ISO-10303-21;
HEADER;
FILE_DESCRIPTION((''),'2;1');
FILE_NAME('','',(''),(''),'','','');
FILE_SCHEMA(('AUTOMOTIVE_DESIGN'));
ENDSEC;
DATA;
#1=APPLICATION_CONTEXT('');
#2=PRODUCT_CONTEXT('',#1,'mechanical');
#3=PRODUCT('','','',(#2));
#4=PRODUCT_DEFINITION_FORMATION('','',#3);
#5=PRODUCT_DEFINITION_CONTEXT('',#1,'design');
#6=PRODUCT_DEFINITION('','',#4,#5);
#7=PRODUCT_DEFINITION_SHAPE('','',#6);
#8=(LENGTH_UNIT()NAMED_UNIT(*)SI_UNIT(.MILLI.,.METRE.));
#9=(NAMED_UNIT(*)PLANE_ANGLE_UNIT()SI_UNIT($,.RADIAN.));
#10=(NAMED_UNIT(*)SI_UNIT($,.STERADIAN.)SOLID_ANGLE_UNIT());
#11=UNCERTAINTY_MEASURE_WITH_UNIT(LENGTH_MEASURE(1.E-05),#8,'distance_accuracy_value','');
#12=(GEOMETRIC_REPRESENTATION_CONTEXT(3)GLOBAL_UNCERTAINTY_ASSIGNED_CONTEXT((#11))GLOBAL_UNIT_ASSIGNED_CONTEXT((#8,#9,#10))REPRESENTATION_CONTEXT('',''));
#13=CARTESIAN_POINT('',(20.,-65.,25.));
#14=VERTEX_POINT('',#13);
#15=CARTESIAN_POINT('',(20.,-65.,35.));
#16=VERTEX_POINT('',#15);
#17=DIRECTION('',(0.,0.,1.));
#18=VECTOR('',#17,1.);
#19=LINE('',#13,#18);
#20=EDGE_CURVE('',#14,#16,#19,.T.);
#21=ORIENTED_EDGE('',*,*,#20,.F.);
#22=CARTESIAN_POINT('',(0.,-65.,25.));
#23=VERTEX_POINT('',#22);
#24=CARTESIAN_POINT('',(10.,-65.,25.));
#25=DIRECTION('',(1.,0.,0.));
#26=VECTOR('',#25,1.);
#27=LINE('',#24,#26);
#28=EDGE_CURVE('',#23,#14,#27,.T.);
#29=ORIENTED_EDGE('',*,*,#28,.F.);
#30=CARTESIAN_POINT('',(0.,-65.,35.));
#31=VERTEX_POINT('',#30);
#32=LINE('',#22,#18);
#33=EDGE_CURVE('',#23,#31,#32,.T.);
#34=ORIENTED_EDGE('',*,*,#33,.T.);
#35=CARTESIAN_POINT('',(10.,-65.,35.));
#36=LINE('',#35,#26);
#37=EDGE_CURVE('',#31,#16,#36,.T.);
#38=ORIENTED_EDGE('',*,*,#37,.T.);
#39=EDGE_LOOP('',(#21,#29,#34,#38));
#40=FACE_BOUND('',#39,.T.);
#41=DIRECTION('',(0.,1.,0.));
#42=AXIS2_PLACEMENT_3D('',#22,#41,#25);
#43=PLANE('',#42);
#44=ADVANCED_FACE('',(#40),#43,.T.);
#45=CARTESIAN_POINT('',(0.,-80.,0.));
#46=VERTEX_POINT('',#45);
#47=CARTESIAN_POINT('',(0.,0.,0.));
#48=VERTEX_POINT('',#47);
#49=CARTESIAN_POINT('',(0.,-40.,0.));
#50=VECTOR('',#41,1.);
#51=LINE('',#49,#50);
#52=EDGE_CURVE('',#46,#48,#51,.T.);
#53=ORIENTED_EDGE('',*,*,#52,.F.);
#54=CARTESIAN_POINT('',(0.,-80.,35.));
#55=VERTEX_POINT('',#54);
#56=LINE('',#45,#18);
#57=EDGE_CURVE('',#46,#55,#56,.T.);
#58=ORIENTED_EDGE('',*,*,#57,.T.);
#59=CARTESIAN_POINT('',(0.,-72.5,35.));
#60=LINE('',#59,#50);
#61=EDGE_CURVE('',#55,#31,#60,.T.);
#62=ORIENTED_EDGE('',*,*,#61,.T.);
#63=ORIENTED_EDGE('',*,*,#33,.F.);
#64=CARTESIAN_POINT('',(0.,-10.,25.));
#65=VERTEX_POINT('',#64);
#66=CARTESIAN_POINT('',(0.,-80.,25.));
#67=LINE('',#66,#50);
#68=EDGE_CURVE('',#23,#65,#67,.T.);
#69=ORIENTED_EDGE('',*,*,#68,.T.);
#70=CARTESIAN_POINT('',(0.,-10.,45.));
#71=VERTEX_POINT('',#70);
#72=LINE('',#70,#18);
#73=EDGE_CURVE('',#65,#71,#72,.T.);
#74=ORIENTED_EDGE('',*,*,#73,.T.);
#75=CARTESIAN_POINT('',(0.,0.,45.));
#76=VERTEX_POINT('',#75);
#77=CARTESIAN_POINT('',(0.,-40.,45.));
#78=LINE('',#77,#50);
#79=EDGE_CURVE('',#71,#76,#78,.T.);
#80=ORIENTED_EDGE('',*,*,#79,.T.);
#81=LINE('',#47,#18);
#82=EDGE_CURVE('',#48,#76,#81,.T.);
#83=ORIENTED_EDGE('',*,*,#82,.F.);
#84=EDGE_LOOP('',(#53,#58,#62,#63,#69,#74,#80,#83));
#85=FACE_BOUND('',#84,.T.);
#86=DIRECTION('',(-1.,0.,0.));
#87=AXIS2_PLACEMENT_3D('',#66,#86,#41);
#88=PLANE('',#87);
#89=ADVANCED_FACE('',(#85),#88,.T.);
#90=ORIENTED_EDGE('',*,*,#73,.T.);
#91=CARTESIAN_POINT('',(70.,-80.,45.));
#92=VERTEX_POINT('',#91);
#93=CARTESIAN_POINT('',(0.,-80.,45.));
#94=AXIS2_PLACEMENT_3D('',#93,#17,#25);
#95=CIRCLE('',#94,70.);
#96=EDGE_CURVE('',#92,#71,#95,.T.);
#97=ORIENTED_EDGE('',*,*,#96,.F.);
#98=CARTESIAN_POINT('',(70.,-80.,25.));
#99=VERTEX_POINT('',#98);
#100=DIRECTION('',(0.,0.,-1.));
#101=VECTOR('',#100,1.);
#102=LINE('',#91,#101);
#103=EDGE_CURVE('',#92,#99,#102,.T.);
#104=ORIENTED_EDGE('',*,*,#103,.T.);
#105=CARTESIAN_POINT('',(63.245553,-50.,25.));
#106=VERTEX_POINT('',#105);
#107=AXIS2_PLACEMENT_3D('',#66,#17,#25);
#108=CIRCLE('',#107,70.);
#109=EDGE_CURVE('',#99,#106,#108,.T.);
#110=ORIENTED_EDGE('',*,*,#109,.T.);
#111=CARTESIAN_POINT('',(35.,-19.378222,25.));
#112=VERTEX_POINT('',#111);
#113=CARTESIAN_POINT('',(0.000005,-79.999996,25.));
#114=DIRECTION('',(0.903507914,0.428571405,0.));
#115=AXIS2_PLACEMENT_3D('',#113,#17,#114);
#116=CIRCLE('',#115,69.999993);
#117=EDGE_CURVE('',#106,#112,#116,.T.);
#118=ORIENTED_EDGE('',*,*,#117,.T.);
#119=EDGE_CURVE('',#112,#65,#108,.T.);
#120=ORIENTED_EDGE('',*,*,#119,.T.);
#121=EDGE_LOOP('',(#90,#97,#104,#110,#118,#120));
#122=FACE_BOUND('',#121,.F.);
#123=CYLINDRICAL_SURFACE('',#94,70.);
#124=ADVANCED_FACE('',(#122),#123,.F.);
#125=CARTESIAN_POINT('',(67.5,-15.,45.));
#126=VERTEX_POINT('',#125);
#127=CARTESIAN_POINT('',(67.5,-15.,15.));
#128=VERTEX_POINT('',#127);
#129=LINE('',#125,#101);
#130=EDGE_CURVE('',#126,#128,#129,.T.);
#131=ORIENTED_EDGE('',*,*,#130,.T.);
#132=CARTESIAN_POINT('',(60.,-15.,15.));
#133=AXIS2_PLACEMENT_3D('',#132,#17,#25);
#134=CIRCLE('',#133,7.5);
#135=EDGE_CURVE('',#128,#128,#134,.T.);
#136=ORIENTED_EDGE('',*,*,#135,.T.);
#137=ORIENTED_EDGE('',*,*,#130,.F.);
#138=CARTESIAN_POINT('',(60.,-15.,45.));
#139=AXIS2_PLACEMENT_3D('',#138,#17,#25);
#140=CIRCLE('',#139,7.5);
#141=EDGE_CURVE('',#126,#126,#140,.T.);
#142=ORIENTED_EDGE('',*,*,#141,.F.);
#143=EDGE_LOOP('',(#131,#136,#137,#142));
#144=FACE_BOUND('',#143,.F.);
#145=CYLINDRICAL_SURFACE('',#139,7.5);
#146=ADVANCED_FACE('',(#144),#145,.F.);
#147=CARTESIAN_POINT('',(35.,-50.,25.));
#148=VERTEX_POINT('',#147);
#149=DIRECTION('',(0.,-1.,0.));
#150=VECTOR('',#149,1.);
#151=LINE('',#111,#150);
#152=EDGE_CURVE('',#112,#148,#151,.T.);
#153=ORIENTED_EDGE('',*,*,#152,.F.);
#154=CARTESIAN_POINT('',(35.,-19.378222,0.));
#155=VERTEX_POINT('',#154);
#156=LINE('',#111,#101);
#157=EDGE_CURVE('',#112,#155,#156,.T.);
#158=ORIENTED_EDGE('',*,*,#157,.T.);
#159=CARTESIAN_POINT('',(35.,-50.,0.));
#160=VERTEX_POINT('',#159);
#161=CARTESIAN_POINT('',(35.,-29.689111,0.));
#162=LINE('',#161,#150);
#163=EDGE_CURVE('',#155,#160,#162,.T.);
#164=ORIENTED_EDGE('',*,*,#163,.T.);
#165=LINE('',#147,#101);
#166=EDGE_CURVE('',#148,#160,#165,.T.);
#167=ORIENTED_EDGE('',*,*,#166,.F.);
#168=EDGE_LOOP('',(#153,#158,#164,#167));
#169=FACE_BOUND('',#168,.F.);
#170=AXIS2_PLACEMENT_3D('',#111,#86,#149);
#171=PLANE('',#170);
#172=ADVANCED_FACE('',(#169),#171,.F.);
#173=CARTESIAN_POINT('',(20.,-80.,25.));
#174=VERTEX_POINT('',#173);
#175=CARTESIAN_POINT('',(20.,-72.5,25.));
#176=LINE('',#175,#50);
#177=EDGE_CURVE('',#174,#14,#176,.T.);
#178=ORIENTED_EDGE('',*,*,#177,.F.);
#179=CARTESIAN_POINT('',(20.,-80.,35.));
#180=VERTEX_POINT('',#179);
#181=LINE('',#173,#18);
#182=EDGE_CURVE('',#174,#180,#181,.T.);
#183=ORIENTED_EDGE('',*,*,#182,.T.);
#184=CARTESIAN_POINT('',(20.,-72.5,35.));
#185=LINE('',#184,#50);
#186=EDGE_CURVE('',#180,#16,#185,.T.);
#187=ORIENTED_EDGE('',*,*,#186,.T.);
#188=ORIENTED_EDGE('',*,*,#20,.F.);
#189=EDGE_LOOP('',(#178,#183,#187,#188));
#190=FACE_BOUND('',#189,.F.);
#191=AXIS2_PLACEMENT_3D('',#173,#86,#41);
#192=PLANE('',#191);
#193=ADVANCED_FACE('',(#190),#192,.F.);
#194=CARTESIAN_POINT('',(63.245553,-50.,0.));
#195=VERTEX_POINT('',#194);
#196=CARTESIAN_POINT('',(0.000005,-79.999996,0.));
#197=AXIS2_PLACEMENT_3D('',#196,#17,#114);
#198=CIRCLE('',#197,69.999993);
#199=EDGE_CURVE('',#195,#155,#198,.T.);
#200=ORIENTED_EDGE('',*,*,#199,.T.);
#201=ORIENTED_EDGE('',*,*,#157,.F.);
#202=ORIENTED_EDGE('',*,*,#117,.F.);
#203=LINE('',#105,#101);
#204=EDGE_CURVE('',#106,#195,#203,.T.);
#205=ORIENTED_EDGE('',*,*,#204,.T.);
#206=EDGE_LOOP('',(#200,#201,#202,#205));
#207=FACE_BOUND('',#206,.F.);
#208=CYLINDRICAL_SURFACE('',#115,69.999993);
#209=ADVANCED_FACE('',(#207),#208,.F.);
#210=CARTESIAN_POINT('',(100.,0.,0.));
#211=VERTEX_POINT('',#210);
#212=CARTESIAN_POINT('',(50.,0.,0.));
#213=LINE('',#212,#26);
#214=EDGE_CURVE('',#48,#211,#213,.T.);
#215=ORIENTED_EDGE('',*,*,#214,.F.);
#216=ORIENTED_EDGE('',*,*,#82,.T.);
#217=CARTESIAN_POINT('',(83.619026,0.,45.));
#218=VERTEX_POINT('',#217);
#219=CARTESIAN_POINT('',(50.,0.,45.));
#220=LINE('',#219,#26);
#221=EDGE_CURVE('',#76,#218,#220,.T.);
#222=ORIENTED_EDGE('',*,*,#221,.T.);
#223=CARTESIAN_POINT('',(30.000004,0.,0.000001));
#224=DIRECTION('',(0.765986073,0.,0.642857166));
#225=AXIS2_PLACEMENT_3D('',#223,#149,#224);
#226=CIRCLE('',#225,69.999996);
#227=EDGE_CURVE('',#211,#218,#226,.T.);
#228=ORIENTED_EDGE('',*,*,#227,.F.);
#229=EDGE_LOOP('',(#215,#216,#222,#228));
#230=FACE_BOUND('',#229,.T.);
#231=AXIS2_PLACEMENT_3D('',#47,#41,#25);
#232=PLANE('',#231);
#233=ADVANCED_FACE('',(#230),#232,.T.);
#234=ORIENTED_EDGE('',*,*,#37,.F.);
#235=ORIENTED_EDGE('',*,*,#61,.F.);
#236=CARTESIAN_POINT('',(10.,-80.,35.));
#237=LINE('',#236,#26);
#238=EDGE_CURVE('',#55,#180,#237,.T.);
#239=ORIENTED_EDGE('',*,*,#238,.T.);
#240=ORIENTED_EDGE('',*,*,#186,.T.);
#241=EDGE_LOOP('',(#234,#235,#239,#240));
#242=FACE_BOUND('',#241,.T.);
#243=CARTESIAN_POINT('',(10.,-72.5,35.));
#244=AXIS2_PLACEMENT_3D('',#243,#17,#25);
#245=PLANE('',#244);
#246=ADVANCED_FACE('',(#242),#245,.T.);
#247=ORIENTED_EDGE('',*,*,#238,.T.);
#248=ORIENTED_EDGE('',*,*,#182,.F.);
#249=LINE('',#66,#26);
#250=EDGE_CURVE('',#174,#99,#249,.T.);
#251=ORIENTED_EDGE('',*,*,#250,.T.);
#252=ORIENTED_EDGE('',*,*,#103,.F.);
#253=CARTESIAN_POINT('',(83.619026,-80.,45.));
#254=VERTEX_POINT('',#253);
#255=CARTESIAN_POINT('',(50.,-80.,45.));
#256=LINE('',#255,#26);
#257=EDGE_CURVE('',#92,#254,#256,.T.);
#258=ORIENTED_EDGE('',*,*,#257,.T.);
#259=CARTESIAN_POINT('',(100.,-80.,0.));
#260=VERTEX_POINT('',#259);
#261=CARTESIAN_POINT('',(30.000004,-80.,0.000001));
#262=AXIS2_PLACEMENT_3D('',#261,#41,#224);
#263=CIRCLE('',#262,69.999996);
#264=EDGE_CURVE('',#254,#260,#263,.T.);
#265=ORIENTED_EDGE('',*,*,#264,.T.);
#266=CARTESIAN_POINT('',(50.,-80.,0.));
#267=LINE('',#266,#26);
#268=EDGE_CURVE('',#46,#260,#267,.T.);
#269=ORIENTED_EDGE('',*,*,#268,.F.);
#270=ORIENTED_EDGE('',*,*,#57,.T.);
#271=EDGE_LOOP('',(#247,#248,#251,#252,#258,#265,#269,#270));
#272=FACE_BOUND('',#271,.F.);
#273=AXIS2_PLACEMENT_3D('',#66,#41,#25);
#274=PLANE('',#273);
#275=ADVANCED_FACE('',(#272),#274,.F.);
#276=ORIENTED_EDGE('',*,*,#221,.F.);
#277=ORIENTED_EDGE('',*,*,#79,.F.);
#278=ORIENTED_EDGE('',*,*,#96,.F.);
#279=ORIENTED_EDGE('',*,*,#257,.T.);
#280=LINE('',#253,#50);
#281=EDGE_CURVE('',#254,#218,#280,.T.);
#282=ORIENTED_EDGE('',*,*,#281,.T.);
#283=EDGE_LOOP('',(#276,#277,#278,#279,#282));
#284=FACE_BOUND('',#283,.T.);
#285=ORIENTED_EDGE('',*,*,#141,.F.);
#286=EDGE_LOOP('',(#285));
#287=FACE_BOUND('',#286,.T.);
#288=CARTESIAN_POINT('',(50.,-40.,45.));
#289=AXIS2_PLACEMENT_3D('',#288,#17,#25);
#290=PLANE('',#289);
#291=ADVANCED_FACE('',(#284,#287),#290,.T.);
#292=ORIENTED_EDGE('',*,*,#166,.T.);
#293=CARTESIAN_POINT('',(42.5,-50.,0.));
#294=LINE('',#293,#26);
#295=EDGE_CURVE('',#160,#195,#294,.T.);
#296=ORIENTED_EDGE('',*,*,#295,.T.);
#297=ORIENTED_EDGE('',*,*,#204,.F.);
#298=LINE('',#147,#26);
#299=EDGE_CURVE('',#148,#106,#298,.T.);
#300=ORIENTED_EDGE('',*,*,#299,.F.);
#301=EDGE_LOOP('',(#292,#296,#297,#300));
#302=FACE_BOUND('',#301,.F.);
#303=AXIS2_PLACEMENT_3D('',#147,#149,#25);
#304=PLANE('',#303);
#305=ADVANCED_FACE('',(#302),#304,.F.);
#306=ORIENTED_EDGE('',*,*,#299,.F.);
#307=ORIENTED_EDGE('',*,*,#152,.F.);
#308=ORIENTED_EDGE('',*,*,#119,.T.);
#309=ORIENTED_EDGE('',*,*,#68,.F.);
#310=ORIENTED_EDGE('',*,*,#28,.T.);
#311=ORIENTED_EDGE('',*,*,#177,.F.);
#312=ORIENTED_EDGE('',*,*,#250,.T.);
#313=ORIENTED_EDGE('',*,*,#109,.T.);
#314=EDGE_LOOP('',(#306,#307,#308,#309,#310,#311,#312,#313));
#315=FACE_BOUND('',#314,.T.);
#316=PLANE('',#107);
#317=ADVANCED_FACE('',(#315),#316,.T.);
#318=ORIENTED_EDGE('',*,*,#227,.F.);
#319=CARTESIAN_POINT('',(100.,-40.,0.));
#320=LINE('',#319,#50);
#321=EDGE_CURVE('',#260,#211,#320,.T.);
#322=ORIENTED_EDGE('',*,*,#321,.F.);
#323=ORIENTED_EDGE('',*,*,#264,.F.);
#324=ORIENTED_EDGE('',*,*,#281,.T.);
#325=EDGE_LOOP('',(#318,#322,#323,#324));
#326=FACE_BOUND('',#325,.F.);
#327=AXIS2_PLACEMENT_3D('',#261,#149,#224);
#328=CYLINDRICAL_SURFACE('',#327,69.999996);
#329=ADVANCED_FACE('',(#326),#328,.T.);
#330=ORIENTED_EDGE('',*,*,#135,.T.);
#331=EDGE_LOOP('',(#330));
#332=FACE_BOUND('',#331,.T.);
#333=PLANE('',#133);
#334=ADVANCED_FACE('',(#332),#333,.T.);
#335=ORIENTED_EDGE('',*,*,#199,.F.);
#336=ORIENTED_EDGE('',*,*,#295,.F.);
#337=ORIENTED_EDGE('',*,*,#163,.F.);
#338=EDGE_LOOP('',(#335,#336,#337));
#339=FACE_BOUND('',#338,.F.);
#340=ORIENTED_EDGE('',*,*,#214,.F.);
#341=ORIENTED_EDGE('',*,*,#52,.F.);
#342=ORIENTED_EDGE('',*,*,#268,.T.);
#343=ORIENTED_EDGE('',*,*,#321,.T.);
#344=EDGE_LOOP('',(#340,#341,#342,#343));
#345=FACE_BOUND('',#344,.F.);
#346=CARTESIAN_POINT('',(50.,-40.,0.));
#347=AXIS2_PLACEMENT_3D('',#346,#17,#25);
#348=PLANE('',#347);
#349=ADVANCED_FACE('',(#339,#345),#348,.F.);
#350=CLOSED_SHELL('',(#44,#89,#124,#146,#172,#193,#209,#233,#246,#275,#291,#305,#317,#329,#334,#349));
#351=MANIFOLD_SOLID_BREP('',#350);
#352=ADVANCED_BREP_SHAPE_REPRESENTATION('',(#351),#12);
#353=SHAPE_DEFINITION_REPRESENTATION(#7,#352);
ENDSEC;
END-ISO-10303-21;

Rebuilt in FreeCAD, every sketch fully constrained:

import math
import FreeCAD as App
import Part
import Sketcher

V = App.Vector

doc = App.newDocument("Part")
params = doc.addObject("Spreadsheet::Sheet", "Params")
for row, (alias, value) in enumerate([
    ("sketch1_width", "100 mm"),
    ("sketch1_height", "80 mm"),
    ("pad1_length", "45 mm"),
    ("sketch2_diameter", "140 mm"),
    ("pocket1_length", "20 mm"),
    ("sketch3_width", "20 mm"),
    ("sketch3_height", "15 mm"),
    ("pad2_length", "10 mm"),
    ("pocket2_length", "151.8 mm"),
    ("sketch5_diameter", "15 mm"),
    ("pocket3_length", "30 mm"),
    ("sketch6_height", "45 mm"),
    ("pocket4_length", "85.3 mm"),
], start=1):
    params.set(f"A{row}", alias)
    params.set(f"B{row}", "=" + value)
    params.setAlias(f"B{row}", alias)

body = doc.addObject("PartDesign::Body", "Body")

# Sketch on XY plane
sketch1 = body.newObject("Sketcher::SketchObject", "Sketch")
sketch1.AttachmentSupport = (doc.getObject("XY_Plane"), [""])
sketch1.MapMode = "FlatFace"
sketch1.addGeometry([
    Part.LineSegment(V(0, 0, 0), V(0, -80, 0)),
    Part.LineSegment(V(0, -80, 0), V(100, -80, 0)),
    Part.LineSegment(V(100, -80, 0), V(100, 0, 0)),
    Part.LineSegment(V(100, 0, 0), V(0, 0, 0)),
], False)
sketch1.addConstraint([
    Sketcher.Constraint("Coincident", 0, 2, 1, 1),
    Sketcher.Constraint("Coincident", 1, 2, 2, 1),
    Sketcher.Constraint("Coincident", 2, 2, 3, 1),
    Sketcher.Constraint("Coincident", 3, 2, 0, 1),
    Sketcher.Constraint("Vertical", 0),
    Sketcher.Constraint("Horizontal", 1),
    Sketcher.Constraint("Vertical", 2),
    Sketcher.Constraint("Horizontal", 3),
    Sketcher.Constraint("Coincident", 3, 2, -1, 1),
    Sketcher.Constraint("DistanceX", 1, 1, 1, 2, 100.0),
    Sketcher.Constraint("DistanceY", 0, 2, 0, 1, 80.0),
])
sketch1.setExpression("Constraints[9]", "Params.sketch1_width")
sketch1.setExpression("Constraints[10]", "Params.sketch1_height")
pad1 = body.newObject("PartDesign::Pad", "Pad")
pad1.Profile = sketch1
pad1.setExpression("Length", "Params.pad1_length")

# Sketch on XY plane
sketch2 = body.newObject("Sketcher::SketchObject", "Sketch001")
sketch2.AttachmentSupport = (doc.getObject("XY_Plane"), [""])
sketch2.MapMode = "FlatFace"
sketch2.AttachmentOffset = App.Placement(V(0, 0, 45), App.Rotation())
sketch2.addGeometry(Part.Circle(V(0, -80, 0), V(0, 0, 1), 70), False)
sketch2.addConstraint([
    Sketcher.Constraint("PointOnObject", 0, 3, -2),
    Sketcher.Constraint("Diameter", 0, 140.0),
    Sketcher.Constraint("DistanceY", 0, 3, -1, 1, 80.0),
])
sketch2.setExpression("Constraints[1]", "Params.sketch2_diameter")
pocket1 = body.newObject("PartDesign::Pocket", "Pocket")
pocket1.Profile = sketch2
pocket1.setExpression("Length", "Params.pocket1_length")

# Sketch on XY plane
sketch3 = body.newObject("Sketcher::SketchObject", "Sketch002")
sketch3.AttachmentSupport = (doc.getObject("XY_Plane"), [""])
sketch3.MapMode = "FlatFace"
sketch3.AttachmentOffset = App.Placement(V(0, 0, 25), App.Rotation())
sketch3.addGeometry([
    Part.LineSegment(V(0, -65, 0), V(0, -80, 0)),
    Part.LineSegment(V(0, -80, 0), V(20, -80, 0)),
    Part.LineSegment(V(20, -80, 0), V(20, -65, 0)),
    Part.LineSegment(V(20, -65, 0), V(0, -65, 0)),
], False)
sketch3.addConstraint([
    Sketcher.Constraint("Coincident", 0, 2, 1, 1),
    Sketcher.Constraint("Coincident", 1, 2, 2, 1),
    Sketcher.Constraint("Coincident", 2, 2, 3, 1),
    Sketcher.Constraint("Coincident", 3, 2, 0, 1),
    Sketcher.Constraint("Vertical", 0),
    Sketcher.Constraint("Horizontal", 1),
    Sketcher.Constraint("Vertical", 2),
    Sketcher.Constraint("Horizontal", 3),
    Sketcher.Constraint("PointOnObject", 0, 2, -2),
    Sketcher.Constraint("DistanceX", 1, 1, 1, 2, 20.0),
    Sketcher.Constraint("DistanceY", 0, 2, 0, 1, 15.0),
    Sketcher.Constraint("DistanceY", 0, 2, -1, 1, 80.0),
])
sketch3.setExpression("Constraints[9]", "Params.sketch3_width")
sketch3.setExpression("Constraints[10]", "Params.sketch3_height")
pad2 = body.newObject("PartDesign::Pad", "Pad001")
pad2.Profile = sketch3
pad2.setExpression("Length", "Params.pad2_length")

# Sketch on XY plane
sketch4 = body.newObject("Sketcher::SketchObject", "Sketch003")
sketch4.AttachmentSupport = (doc.getObject("XY_Plane"), [""])
sketch4.MapMode = "FlatFace"
sketch4.AttachmentOffset = App.Placement(V(0, 0, 25), App.Rotation())
sketch4.addGeometry([
    Part.LineSegment(V(35, -50, 0), V(63, -50, 0)),
    Part.ArcOfCircle(Part.Circle(V(0, -80, 0), V(0, 0, 1), 70), math.radians(25), math.radians(60)),
    Part.LineSegment(V(35, -19, 0), V(35, -50, 0)),
], False)
sketch4.addConstraint([
    Sketcher.Constraint("Coincident", 0, 2, 1, 1),
    Sketcher.Constraint("Coincident", 1, 2, 2, 1),
    Sketcher.Constraint("Coincident", 2, 2, 0, 1),
    Sketcher.Constraint("Horizontal", 0),
    Sketcher.Constraint("Vertical", 2),
    Sketcher.Constraint("DistanceY", 0, 2, -1, 1, 50.0),
    Sketcher.Constraint("DistanceX", -1, 1, 1, 2, 35.0),
    Sketcher.Constraint("Radius", 1, 69.999993),
    Sketcher.Constraint("DistanceX", 0, 1, 0, 2, 28.245553),
    Sketcher.Constraint("DistanceY", 2, 2, 2, 1, 30.621778),
])
pocket2 = body.newObject("PartDesign::Pocket", "Pocket001")
pocket2.Profile = sketch4
pocket2.setExpression("Length", "Params.pocket2_length")

# Sketch on XY plane
sketch5 = body.newObject("Sketcher::SketchObject", "Sketch004")
sketch5.AttachmentSupport = (doc.getObject("XY_Plane"), [""])
sketch5.MapMode = "FlatFace"
sketch5.AttachmentOffset = App.Placement(V(0, 0, 45), App.Rotation())
sketch5.addGeometry(Part.Circle(V(60, -15, 0), V(0, 0, 1), 8), False)
sketch5.addConstraint([
    Sketcher.Constraint("Diameter", 0, 15.0),
    Sketcher.Constraint("DistanceX", -1, 1, 0, 3, 60.0),
    Sketcher.Constraint("DistanceY", 0, 3, -1, 1, 15.0),
])
sketch5.setExpression("Constraints[0]", "Params.sketch5_diameter")
pocket3 = body.newObject("PartDesign::Pocket", "Pocket002")
pocket3.Profile = sketch5
pocket3.setExpression("Length", "Params.pocket3_length")

# Sketch on XZ plane
sketch6 = body.newObject("Sketcher::SketchObject", "Sketch005")
sketch6.AttachmentSupport = (doc.getObject("XZ_Plane"), [""])
sketch6.MapMode = "FlatFace"
sketch6.AttachmentOffset = App.Placement(V(0, 0, 80), App.Rotation())
sketch6.addGeometry([
    Part.ArcOfCircle(Part.Circle(V(30, 0, 0), V(0, 0, 1), 70), math.radians(0), math.radians(40)),
    Part.LineSegment(V(100, 0, 0), V(100, 45, 0)),
    Part.LineSegment(V(100, 45, 0), V(84, 45, 0)),
], False)
sketch6.addConstraint([
    Sketcher.Constraint("Tangent", 0, 1, 1, 1),
    Sketcher.Constraint("Coincident", 1, 2, 2, 1),
    Sketcher.Constraint("Coincident", 2, 2, 0, 2),
    Sketcher.Constraint("Vertical", 1),
    Sketcher.Constraint("Horizontal", 2),
    Sketcher.Constraint("PointOnObject", 0, 3, -1),
    Sketcher.Constraint("DistanceY", 1, 1, 1, 2, 45.0),
    Sketcher.Constraint("DistanceX", -1, 1, 0, 1, 100.0),
    Sketcher.Constraint("Radius", 0, 69.999996),
])
sketch6.setExpression("Constraints[6]", "Params.sketch6_height")
pocket4 = body.newObject("PartDesign::Pocket", "Pocket003")
pocket4.Profile = sketch6
pocket4.setExpression("Length", "Params.pocket4_length")

doc.recompute()
